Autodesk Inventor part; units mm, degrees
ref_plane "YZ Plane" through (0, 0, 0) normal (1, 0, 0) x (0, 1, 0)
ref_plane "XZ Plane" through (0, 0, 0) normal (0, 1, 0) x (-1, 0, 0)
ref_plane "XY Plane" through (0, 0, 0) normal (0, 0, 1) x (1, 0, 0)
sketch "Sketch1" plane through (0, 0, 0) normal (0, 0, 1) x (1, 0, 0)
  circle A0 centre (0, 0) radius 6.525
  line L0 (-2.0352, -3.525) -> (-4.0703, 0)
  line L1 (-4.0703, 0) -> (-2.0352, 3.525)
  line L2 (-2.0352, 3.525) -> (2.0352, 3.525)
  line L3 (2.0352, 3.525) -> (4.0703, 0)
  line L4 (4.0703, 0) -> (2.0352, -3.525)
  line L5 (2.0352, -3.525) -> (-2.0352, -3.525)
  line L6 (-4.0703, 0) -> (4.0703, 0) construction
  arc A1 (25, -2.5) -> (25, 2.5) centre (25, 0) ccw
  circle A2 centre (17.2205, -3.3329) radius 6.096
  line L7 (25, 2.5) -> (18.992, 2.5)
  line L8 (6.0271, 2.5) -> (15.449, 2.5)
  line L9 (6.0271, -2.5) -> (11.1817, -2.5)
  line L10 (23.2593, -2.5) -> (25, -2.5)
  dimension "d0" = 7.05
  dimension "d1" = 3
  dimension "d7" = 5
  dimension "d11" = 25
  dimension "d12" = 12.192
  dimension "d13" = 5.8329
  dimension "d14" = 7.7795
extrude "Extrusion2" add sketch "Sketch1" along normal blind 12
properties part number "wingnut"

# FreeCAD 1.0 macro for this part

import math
import FreeCAD as App
import Part
import Sketcher

V = App.Vector
Q = App.Units.Quantity


def add_polygon(sketch, points):
    """Adds a closed chain of lines whose ends are joined by coincident constraints."""
    first, n = sketch.GeometryCount, len(points)
    for a, b in zip(points, points[1:] + points[:1]):
        sketch.addGeometry(Part.LineSegment(App.Vector(*a, 0), App.Vector(*b, 0)), False)
    for i in range(n):
        sketch.addConstraint(Sketcher.Constraint("Coincident", first + i, 2, first + (i + 1) % n, 1))

doc = App.newDocument("Part")
body = doc.addObject("PartDesign::Body", "Body")

sketch1 = body.newObject("Sketcher::SketchObject", "Sketch")
sketch1.AttachmentSupport = (doc.getObject("XY_Plane"), [""])
sketch1.MapMode = "FlatFace"
sketch1.addGeometry(Part.ArcOfCircle(Part.Circle(V(0, 0, 0), V(0, 0, 1), 6.525), math.radians(22.528341), math.radians(337.471659)), False)
sketch1.addGeometry(Part.LineSegment(V(6.0271, -2.5, 0), V(11.1817, -2.5, 0)), False)
sketch1.addGeometry(Part.ArcOfCircle(Part.Circle(V(17.2205, -3.3329, 0), V(0, 0, 1), 6.096), math.radians(172.14704), math.radians(367.85296)), False)
sketch1.addGeometry(Part.LineSegment(V(23.2593, -2.5, 0), V(25, -2.5, 0)), False)
sketch1.addGeometry(Part.ArcOfCircle(Part.Circle(V(25, 0, 0), V(0, 0, 1), 2.5), math.radians(-90), math.radians(90)), False)
sketch1.addGeometry(Part.LineSegment(V(25, 2.5, 0), V(18.992, 2.5, 0)), False)
sketch1.addGeometry(Part.ArcOfCircle(Part.Circle(V(17.2205, -3.3329, 0), V(0, 0, 1), 6.096), math.radians(73.10603), math.radians(106.89397)), False)
sketch1.addGeometry(Part.LineSegment(V(15.449, 2.5, 0), V(6.0271, 2.5, 0)), False)
add_polygon(sketch1, [(2.0352, -3.525), (-2.0352, -3.525), (-4.0703, 0), (-2.0352, 3.525), (2.0352, 3.525), (4.0703, 0)])
sketch1.addConstraint(Sketcher.Constraint("Coincident", 0, 2, 1, 1))
sketch1.addConstraint(Sketcher.Constraint("Coincident", 1, 2, 2, 1))
sketch1.addConstraint(Sketcher.Constraint("Coincident", 2, 2, 3, 1))
sketch1.addConstraint(Sketcher.Constraint("Tangent", 3, 2, 4, 1))
sketch1.addConstraint(Sketcher.Constraint("Tangent", 4, 2, 5, 1))
sketch1.addConstraint(Sketcher.Constraint("Coincident", 5, 2, 6, 1))
sketch1.addConstraint(Sketcher.Constraint("Coincident", 6, 2, 7, 1))
sketch1.addConstraint(Sketcher.Constraint("Coincident", 7, 2, 0, 1))
sketch1.addConstraint(Sketcher.Constraint("Horizontal", 1))
sketch1.addConstraint(Sketcher.Constraint("Horizontal", 3))
sketch1.addConstraint(Sketcher.Constraint("Horizontal", 5))
sketch1.addConstraint(Sketcher.Constraint("Horizontal", 7))
sketch1.addConstraint(Sketcher.Constraint("Horizontal", 8))
sketch1.addConstraint(Sketcher.Constraint("Horizontal", 11))
sketch1.addConstraint(Sketcher.Constraint("Coincident", 0, 3, -1, 1))
sketch1.addConstraint(Sketcher.Constraint("Coincident", 6, 3, 2, 3))
sketch1.addConstraint(Sketcher.Constraint("Equal", 2, 6))
sketch1.addConstraint(Sketcher.Constraint("Symmetric", 8, 2, 11, 2, -1, 1))
sketch1.addConstraint(Sketcher.Constraint("Symmetric", 9, 2, 12, 2, -1, 1))
sketch1.addConstraint(Sketcher.Constraint("PointOnObject", 4, 3, -1))
sketch1.addConstraint(Sketcher.Constraint("PointOnObject", 9, 2, -1))
sketch1.addConstraint(Sketcher.Constraint("Parallel", 10, 13))
sketch1.addConstraint(Sketcher.Constraint("Horizontal", 1, 2, 2, 2))
sketch1.addConstraint(Sketcher.Constraint("Horizontal", 5, 2, 6, 2))
sketch1.addConstraint(Sketcher.Constraint("Vertical", 8, 2, 10, 2))
sketch1.addConstraint(Sketcher.Constraint("Radius", 4, Q("2.5 mm")))
sketch1.addConstraint(Sketcher.Constraint("DistanceX", -1, 1, 4, 3, Q("25 mm")))
sketch1.addConstraint(Sketcher.Constraint("Radius", 2, Q("6.096 mm")))
sketch1.addConstraint(Sketcher.Constraint("Angle", 9, Q("119.9993 deg")))
sketch1.addConstraint(Sketcher.Constraint("DistanceY", 8, 2, 10, 2, Q("7.05 mm")))
sketch1.addConstraint(Sketcher.Constraint("Radius", 0, Q("6.525 mm")))
sketch1.addConstraint(Sketcher.Constraint("DistanceY", 2, 3, 4, 2, Q("5.833 mm")))
sketch1.addConstraint(Sketcher.Constraint("DistanceX", 2, 3, 4, 3, Q("7.7795 mm")))
sketch1.addConstraint(Sketcher.Constraint("DistanceX", 8, 2, 8, 1, Q("4.0704 mm")))
pad1 = body.newObject("PartDesign::Pad", "Pad")
pad1.Profile = sketch1
pad1.Length = 12

doc.recompute()
